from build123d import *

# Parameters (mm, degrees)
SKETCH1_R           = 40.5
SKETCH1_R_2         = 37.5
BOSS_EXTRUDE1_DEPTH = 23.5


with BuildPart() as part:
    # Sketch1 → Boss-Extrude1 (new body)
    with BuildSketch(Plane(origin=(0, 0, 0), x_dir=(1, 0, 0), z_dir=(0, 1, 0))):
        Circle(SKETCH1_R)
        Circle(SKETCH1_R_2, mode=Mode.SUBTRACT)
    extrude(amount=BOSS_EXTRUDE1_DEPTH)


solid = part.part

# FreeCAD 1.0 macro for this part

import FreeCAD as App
import Part
import Sketcher
Q = App.Units.Quantity

doc = App.newDocument("Part")
body = doc.addObject("PartDesign::Body", "Body")

sketch1 = body.newObject("Sketcher::SketchObject", "Sketch")
sketch1.AttachmentSupport = (doc.getObject("XZ_Plane"), [""])
sketch1.MapMode = "FlatFace"
sketch1.addGeometry(Part.Circle(App.Vector(0, 0, 0), App.Vector(0, 0, 1), 40.5), False)
sketch1.addGeometry(Part.Circle(App.Vector(0, 0, 0), App.Vector(0, 0, 1), 37.5), False)
sketch1.addConstraint(Sketcher.Constraint("Coincident", 0, 3, -1, 1))
sketch1.addConstraint(Sketcher.Constraint("Coincident", 1, 3, -1, 1))
sketch1.addConstraint(Sketcher.Constraint("Diameter", 0, Q("81 mm")))
sketch1.addConstraint(Sketcher.Constraint("Diameter", 1, Q("75 mm")))
pad1 = body.newObject("PartDesign::Pad", "Pad")
pad1.Profile = sketch1
pad1.Length = 23.5
pad1.Reversed = True

doc.recompute()
